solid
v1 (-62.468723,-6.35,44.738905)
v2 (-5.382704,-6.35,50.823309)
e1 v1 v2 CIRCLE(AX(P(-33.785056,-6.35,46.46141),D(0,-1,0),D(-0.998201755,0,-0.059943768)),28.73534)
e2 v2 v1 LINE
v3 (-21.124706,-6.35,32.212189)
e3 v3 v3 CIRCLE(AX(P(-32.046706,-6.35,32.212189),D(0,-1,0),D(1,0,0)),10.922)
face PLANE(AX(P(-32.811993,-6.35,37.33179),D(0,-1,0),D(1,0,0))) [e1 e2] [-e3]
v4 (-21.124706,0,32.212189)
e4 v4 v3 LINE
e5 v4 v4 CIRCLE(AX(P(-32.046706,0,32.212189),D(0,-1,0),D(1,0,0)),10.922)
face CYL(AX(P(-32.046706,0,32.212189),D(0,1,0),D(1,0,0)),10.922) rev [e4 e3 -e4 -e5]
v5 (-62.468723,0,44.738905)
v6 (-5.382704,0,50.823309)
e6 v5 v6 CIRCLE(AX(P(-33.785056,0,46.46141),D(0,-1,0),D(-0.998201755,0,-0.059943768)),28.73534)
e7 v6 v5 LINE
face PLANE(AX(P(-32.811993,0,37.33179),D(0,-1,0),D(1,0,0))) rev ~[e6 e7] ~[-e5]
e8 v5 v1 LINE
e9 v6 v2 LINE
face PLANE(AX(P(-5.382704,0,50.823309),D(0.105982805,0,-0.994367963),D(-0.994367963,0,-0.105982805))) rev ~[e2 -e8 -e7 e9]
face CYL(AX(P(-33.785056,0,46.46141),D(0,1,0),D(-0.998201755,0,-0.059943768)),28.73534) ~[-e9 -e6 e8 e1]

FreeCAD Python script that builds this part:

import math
import FreeCAD as App
import Part
import Sketcher

V = App.Vector
Q = App.Units.Quantity

doc = App.newDocument("Part")
body = doc.addObject("PartDesign::Body", "Body")

# Sketch on XZ plane
sketch1 = body.newObject("Sketcher::SketchObject", "Sketch")
sketch1.AttachmentSupport = (doc.getObject("XZ_Plane"), [""])
sketch1.MapMode = "FlatFace"
sketch1.addGeometry([
    Part.LineSegment(V(-5, 51, 0), V(-62, 45, 0)),
    Part.ArcOfCircle(Part.Circle(V(-34, 46, 0), V(0, 0, 1), 29), math.radians(-177), math.radians(9)),
    Part.Circle(V(-32, 32, 0), V(0, 0, 1), 11),
], False)
sketch1.addConstraint([
    Sketcher.Constraint("Coincident", 0, 1, 1, 2),
    Sketcher.Constraint("Coincident", 1, 1, 0, 2),
    Sketcher.Constraint("Diameter", 2, Q("0.86 in")),
    Sketcher.Constraint("Radius", 1, 28.73534),
    Sketcher.Constraint("DistanceY", 1, 3, 0, 1, 4.361899),
    Sketcher.Constraint("DistanceX", 2, 3, 0, 1, 26.664002),
    Sketcher.Constraint("Distance", 0, 57.409351),
    Sketcher.Constraint("DistanceY", -1, 1, 1, 3, 46.46141),
    Sketcher.Constraint("DistanceY", -1, 1, 2, 3, 32.212189),
    Sketcher.Constraint("DistanceX", 1, 3, -1, 1, 33.785056),
])
pad1 = body.newObject("PartDesign::Pad", "Pad")
pad1.Profile = sketch1
pad1.Length = Q("0.25 in")

doc.recompute()
